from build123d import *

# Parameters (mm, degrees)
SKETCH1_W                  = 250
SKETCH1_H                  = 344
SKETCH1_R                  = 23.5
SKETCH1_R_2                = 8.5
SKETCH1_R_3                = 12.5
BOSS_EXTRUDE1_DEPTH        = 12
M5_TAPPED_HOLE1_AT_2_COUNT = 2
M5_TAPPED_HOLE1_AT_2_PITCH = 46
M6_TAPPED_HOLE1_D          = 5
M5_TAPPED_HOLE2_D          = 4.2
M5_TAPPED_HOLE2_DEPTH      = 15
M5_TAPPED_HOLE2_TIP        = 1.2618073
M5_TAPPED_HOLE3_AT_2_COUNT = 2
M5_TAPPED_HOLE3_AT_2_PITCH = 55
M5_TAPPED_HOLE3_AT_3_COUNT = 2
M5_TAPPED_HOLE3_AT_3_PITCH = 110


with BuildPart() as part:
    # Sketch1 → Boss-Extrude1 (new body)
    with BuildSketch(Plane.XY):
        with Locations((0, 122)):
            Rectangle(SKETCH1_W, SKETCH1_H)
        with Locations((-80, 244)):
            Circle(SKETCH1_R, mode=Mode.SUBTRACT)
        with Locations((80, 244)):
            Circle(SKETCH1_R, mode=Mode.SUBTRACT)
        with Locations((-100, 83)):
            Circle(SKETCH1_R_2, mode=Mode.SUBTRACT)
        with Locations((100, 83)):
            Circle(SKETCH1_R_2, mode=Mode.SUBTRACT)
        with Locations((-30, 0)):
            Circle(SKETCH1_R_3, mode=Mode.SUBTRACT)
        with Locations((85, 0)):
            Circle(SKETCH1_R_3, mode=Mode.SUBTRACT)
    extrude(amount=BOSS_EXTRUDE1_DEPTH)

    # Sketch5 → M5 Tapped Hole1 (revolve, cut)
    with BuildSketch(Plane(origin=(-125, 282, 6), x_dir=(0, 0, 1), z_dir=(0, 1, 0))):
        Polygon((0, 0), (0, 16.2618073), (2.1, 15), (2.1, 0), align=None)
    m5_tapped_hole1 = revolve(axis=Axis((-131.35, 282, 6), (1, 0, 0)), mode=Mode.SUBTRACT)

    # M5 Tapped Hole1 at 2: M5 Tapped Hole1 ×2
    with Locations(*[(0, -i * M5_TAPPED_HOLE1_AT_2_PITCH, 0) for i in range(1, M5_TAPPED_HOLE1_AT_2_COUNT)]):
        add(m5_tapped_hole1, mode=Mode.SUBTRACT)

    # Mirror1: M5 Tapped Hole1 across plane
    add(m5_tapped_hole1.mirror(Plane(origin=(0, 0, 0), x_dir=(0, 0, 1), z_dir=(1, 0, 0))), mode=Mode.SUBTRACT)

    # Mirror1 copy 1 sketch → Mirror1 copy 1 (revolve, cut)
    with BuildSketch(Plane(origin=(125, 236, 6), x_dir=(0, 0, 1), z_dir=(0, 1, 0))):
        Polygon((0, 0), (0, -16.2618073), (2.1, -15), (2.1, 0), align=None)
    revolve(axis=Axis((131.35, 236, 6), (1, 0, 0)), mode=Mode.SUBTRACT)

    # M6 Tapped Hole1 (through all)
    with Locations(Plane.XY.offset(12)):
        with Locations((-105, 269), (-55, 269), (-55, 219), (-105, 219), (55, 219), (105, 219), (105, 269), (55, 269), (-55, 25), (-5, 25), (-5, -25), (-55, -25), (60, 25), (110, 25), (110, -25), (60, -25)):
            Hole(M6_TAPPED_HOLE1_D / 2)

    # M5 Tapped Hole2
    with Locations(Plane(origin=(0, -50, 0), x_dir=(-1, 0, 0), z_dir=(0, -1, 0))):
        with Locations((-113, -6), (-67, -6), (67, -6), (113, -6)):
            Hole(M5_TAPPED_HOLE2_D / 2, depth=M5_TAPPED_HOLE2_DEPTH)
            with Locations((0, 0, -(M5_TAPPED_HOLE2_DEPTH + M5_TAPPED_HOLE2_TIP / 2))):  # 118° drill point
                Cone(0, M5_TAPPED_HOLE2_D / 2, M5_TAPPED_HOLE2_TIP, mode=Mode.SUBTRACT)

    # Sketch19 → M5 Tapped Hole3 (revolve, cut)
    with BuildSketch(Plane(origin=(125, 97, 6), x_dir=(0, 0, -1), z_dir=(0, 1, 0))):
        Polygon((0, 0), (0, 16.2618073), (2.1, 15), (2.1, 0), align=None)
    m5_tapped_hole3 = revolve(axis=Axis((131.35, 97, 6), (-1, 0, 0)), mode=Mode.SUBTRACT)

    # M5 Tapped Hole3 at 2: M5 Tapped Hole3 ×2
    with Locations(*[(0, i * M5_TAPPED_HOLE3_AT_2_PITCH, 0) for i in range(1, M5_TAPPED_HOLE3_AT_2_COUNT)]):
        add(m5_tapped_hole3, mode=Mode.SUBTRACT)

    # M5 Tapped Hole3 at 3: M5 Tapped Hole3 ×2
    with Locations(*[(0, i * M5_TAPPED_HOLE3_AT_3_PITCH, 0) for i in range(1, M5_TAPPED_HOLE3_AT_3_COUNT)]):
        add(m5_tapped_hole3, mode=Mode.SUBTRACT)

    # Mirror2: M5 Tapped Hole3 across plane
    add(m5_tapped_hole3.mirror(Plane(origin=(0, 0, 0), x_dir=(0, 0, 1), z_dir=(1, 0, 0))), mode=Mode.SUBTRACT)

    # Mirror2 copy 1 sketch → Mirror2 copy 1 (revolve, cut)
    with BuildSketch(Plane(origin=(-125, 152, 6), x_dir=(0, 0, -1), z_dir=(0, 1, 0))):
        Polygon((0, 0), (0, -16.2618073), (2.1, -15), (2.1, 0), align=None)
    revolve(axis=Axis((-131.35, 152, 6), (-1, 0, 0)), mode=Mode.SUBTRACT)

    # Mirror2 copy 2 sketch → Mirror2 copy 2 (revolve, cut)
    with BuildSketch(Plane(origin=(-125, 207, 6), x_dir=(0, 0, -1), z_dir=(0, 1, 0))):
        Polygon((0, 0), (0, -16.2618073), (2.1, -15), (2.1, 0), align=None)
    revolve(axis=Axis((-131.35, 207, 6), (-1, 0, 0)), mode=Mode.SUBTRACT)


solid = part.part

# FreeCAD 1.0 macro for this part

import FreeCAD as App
import Part
import Sketcher
Q = App.Units.Quantity

doc = App.newDocument("Part")
body = doc.addObject("PartDesign::Body", "Body")

sketch1 = body.newObject("Sketcher::SketchObject", "Sketch")
sketch1.AttachmentSupport = (doc.getObject("XY_Plane"), [""])
sketch1.MapMode = "FlatFace"
sketch1.addGeometry([
    Part.LineSegment(App.Vector(-125, 294, 0), App.Vector(-125, -50, 0)),
    Part.LineSegment(App.Vector(-125, -50, 0), App.Vector(125, -50, 0)),
    Part.LineSegment(App.Vector(125, -50, 0), App.Vector(125, 294, 0)),
    Part.LineSegment(App.Vector(125, 294, 0), App.Vector(-125, 294, 0)),
    Part.Circle(App.Vector(-30, 0, 0), App.Vector(0, 0, 1), 12),
    Part.Circle(App.Vector(-100, 83, 0), App.Vector(0, 0, 1), 8),
    Part.Circle(App.Vector(85, 0, 0), App.Vector(0, 0, 1), 12),
    Part.Circle(App.Vector(100, 83, 0), App.Vector(0, 0, 1), 8),
    Part.Circle(App.Vector(-80, 244, 0), App.Vector(0, 0, 1), 24),
    Part.Circle(App.Vector(80, 244, 0), App.Vector(0, 0, 1), 24),
], False)
sketch1.addConstraint([
    Sketcher.Constraint("Coincident", 0, 2, 1, 1),
    Sketcher.Constraint("Coincident", 1, 2, 2, 1),
    Sketcher.Constraint("Coincident", 2, 2, 3, 1),
    Sketcher.Constraint("Coincident", 3, 2, 0, 1),
    Sketcher.Constraint("Vertical", 0),
    Sketcher.Constraint("Horizontal", 1),
    Sketcher.Constraint("Vertical", 2),
    Sketcher.Constraint("Horizontal", 3),
    Sketcher.Constraint("Equal", 4, 6),
    Sketcher.Constraint("Equal", 5, 7),
    Sketcher.Constraint("Equal", 8, 9),
    Sketcher.Constraint("Symmetric", 5, 3, 7, 3, -2),
    Sketcher.Constraint("Symmetric", 8, 3, 9, 3, -2),
    Sketcher.Constraint("PointOnObject", 4, 3, -1),
    Sketcher.Constraint("PointOnObject", 6, 3, -1),
    Sketcher.Constraint("Diameter", 4, 25.0),
    Sketcher.Constraint("Diameter", 5, 17.0),
    Sketcher.Constraint("Diameter", 8, 47.0),
    Sketcher.Constraint("DistanceX", 1, 1, 1, 2, 250.0),
    Sketcher.Constraint("DistanceY", 0, 2, 0, 1, 344.0),
    Sketcher.Constraint("DistanceX", 4, 3, -1, 1, 30.0),
    Sketcher.Constraint("DistanceX", 5, 3, -1, 1, 100.0),
    Sketcher.Constraint("DistanceY", -1, 1, 5, 3, 83.0),
    Sketcher.Constraint("DistanceX", -1, 1, 6, 3, 85.0),
    Sketcher.Constraint("DistanceX", 8, 3, -1, 1, 80.0),
    Sketcher.Constraint("DistanceY", -1, 1, 8, 3, 244.0),
    Sketcher.Constraint("DistanceX", 0, 2, -1, 1, 125.0),
    Sketcher.Constraint("DistanceY", 0, 2, -1, 1, 50.0),
])
pad1 = body.newObject("PartDesign::Pad", "Pad")
pad1.Profile = sketch1
pad1.Length = 12

sketch2 = body.newObject("Sketcher::SketchObject", "Sketch001")
sketch2.AttachmentSupport = (doc.getObject("XZ_Plane"), [""])
sketch2.MapMode = "FlatFace"
sketch2.AttachmentOffset = App.Placement(App.Vector(0, 0, -282), App.Rotation())
sketch2.addGeometry([
    Part.LineSegment(App.Vector(-108.7, 6, 0), App.Vector(-125, 6, 0)),
    Part.LineSegment(App.Vector(-125, 6, 0), App.Vector(-125, 8.1, 0)),
    Part.LineSegment(App.Vector(-125, 8.1, 0), App.Vector(-110, 8.1, 0)),
    Part.LineSegment(App.Vector(-110, 8.1, 0), App.Vector(-108.7, 6, 0)),
], False)
sketch2.addGeometry(Part.LineSegment(App.Vector(-125, 6, 0), App.Vector(-108.7, 6, 0)), True)
sketch2.addConstraint([
    Sketcher.Constraint("Coincident", 0, 2, 1, 1),
    Sketcher.Constraint("Coincident", 1, 2, 2, 1),
    Sketcher.Constraint("Coincident", 2, 2, 3, 1),
    Sketcher.Constraint("Coincident", 3, 2, 0, 1),
    Sketcher.Constraint("Horizontal", 0),
    Sketcher.Constraint("Vertical", 1),
    Sketcher.Constraint("Horizontal", 2),
    Sketcher.Constraint("Horizontal", 4),
    Sketcher.Constraint("Coincident", 4, 1, 0, 2),
    Sketcher.Constraint("Equal", 0, 4),
    Sketcher.Constraint("DistanceX", 2, 1, 2, 2, 15.0),
    Sketcher.Constraint("Angle", 3, Q("-59 deg")),
    Sketcher.Constraint("DistanceY", 1, 1, 1, 2, 2.1),
    Sketcher.Constraint("DistanceX", 0, 2, -1, 1, 125.0),
    Sketcher.Constraint("DistanceY", -1, 1, 0, 2, 6.0),
])
groove = body.newObject("PartDesign::Groove", "Groove")
groove.Profile = sketch2
groove.ReferenceAxis = (sketch2, ["Axis0"])
groove.Angle = 360
doc.recompute()

linearpattern = body.newObject("PartDesign::LinearPattern", "LinearPattern")
linearpattern.Originals = [groove]
linearpattern.Direction = (doc.getObject("Y_Axis"), [""])
linearpattern.Mode = "offset"
linearpattern.Offset = 46
linearpattern.Occurrences = 2
linearpattern.Reversed = True
body.Tip = linearpattern
doc.recompute()

mirrored = body.newObject("PartDesign::Mirrored", "Mirrored")
mirrored.Originals = [groove]
mirrored.MirrorPlane = (doc.getObject("YZ_Plane"), [""])
body.Tip = mirrored

sketch3 = body.newObject("Sketcher::SketchObject", "Sketch002")
sketch3.AttachmentSupport = (doc.getObject("XZ_Plane"), [""])
sketch3.MapMode = "FlatFace"
sketch3.AttachmentOffset = App.Placement(App.Vector(0, 0, -236), App.Rotation())
sketch3.addGeometry([
    Part.LineSegment(App.Vector(125, 6, 0), App.Vector(108.7, 6, 0)),
    Part.LineSegment(App.Vector(108.7, 6, 0), App.Vector(110, 8.1, 0)),
    Part.LineSegment(App.Vector(110, 8.1, 0), App.Vector(125, 8.1, 0)),
    Part.LineSegment(App.Vector(125, 8.1, 0), App.Vector(125, 6, 0)),
], False)
sketch3.addGeometry(Part.LineSegment(App.Vector(108.7, 6, 0), App.Vector(125, 6, 0)), True)
sketch3.addConstraint([
    Sketcher.Constraint("Coincident", 0, 2, 1, 1),
    Sketcher.Constraint("Coincident", 1, 2, 2, 1),
    Sketcher.Constraint("Coincident", 2, 2, 3, 1),
    Sketcher.Constraint("Coincident", 3, 2, 0, 1),
    Sketcher.Constraint("Horizontal", 0),
    Sketcher.Constraint("Horizontal", 2),
    Sketcher.Constraint("Vertical", 3),
    Sketcher.Constraint("Horizontal", 4),
    Sketcher.Constraint("Coincident", 4, 1, 0, 2),
    Sketcher.Constraint("Vertical", 2, 2, 4, 2),
    Sketcher.Constraint("DistanceX", 2, 1, 2, 2, 15.0),
    Sketcher.Constraint("Angle", 1, Q("59 deg")),
    Sketcher.Constraint("DistanceY", 3, 2, 3, 1, 2.1),
    Sketcher.Constraint("DistanceY", -1, 1, 0, 2, 6.0),
    Sketcher.Constraint("DistanceX", -1, 1, 1, 2, 110.0),
])
groove2 = body.newObject("PartDesign::Groove", "Groove001")
groove2.Profile = sketch3
groove2.ReferenceAxis = (sketch3, ["Axis0"])
groove2.Angle = 360

sketch4 = body.newObject("Sketcher::SketchObject", "Sketch003")
sketch4.AttachmentSupport = (doc.getObject("XY_Plane"), [""])
sketch4.MapMode = "FlatFace"
sketch4.AttachmentOffset = App.Placement(App.Vector(0, 0, 12), App.Rotation())
sketch4.addGeometry([
    Part.Circle(App.Vector(-105, 269, 0), App.Vector(0, 0, 1), 2.5),
    Part.Circle(App.Vector(-55, 269, 0), App.Vector(0, 0, 1), 2.5),
    Part.Circle(App.Vector(-55, 219, 0), App.Vector(0, 0, 1), 2.5),
    Part.Circle(App.Vector(-105, 219, 0), App.Vector(0, 0, 1), 2.5),
    Part.Circle(App.Vector(55, 219, 0), App.Vector(0, 0, 1), 2.5),
    Part.Circle(App.Vector(105, 219, 0), App.Vector(0, 0, 1), 2.5),
    Part.Circle(App.Vector(105, 269, 0), App.Vector(0, 0, 1), 2.5),
    Part.Circle(App.Vector(55, 269, 0), App.Vector(0, 0, 1), 2.5),
    Part.Circle(App.Vector(-55, 25, 0), App.Vector(0, 0, 1), 2.5),
    Part.Circle(App.Vector(-5, 25, 0), App.Vector(0, 0, 1), 2.5),
    Part.Circle(App.Vector(-5, -25, 0), App.Vector(0, 0, 1), 2.5),
    Part.Circle(App.Vector(-55, -25, 0), App.Vector(0, 0, 1), 2.5),
    Part.Circle(App.Vector(60, 25, 0), App.Vector(0, 0, 1), 2.5),
    Part.Circle(App.Vector(110, 25, 0), App.Vector(0, 0, 1), 2.5),
    Part.Circle(App.Vector(110, -25, 0), App.Vector(0, 0, 1), 2.5),
    Part.Circle(App.Vector(60, -25, 0), App.Vector(0, 0, 1), 2.5),
], False)
sketch4.addConstraint([
    Sketcher.Constraint("Equal", 0, 1),
    Sketcher.Constraint("Equal", 1, 2),
    Sketcher.Constraint("Equal", 2, 3),
    Sketcher.Constraint("Equal", 3, 4),
    Sketcher.Constraint("Equal", 4, 5),
    Sketcher.Constraint("Equal", 5, 6),
    Sketcher.Constraint("Equal", 6, 7),
    Sketcher.Constraint("Equal", 7, 8),
    Sketcher.Constraint("Equal", 8, 9),
    Sketcher.Constraint("Equal", 9, 10),
    Sketcher.Constraint("Equal", 10, 11),
    Sketcher.Constraint("Equal", 11, 12),
    Sketcher.Constraint("Equal", 12, 13),
    Sketcher.Constraint("Equal", 13, 14),
    Sketcher.Constraint("Equal", 14, 15),
    Sketcher.Constraint("Symmetric", 2, 3, 4, 3, -2),
    Sketcher.Constraint("Symmetric", 3, 3, 5, 3, -2),
    Sketcher.Constraint("Symmetric", 0, 3, 6, 3, -2),
    Sketcher.Constraint("Symmetric", 1, 3, 7, 3, -2),
    Sketcher.Constraint("Symmetric", 9, 3, 10, 3, -1),
    Sketcher.Constraint("Symmetric", 8, 3, 11, 3, -1),
    Sketcher.Constraint("Symmetric", 13, 3, 14, 3, -1),
    Sketcher.Constraint("Symmetric", 12, 3, 15, 3, -1),
    Sketcher.Constraint("Horizontal", 0, 3, 1, 3),
    Sketcher.Constraint("Horizontal", 2, 3, 3, 3),
    Sketcher.Constraint("Horizontal", 8, 3, 9, 3),
    Sketcher.Constraint("Horizontal", 9, 3, 12, 3),
    Sketcher.Constraint("Horizontal", 12, 3, 13, 3),
    Sketcher.Constraint("Vertical", 1, 3, 2, 3),
    Sketcher.Constraint("Vertical", 0, 3, 3, 3),
    Sketcher.Constraint("Vertical", 2, 3, 8, 3),
    Sketcher.Constraint("Diameter", 0, 5.0),
    Sketcher.Constraint("DistanceX", 0, 3, -1, 1, 105.0),
    Sketcher.Constraint("DistanceY", -1, 1, 0, 3, 269.0),
    Sketcher.Constraint("DistanceX", 1, 3, -1, 1, 55.0),
    Sketcher.Constraint("DistanceY", -1, 1, 2, 3, 219.0),
    Sketcher.Constraint("DistanceY", -1, 1, 8, 3, 25.0),
    Sketcher.Constraint("DistanceX", 9, 3, -1, 1, 5.0),
    Sketcher.Constraint("DistanceX", -1, 1, 12, 3, 60.0),
    Sketcher.Constraint("DistanceX", -1, 1, 13, 3, 110.0),
])
doc.recompute()
hole = body.newObject("PartDesign::Hole", "Hole")
hole.Profile = sketch4
hole.ThreadType = "None"
hole.Diameter = 5
hole.DepthType = "ThroughAll"

sketch5 = body.newObject("Sketcher::SketchObject", "Sketch004")
sketch5.AttachmentSupport = (doc.getObject("XZ_Plane"), [""])
sketch5.MapMode = "FlatFace"
sketch5.AttachmentOffset = App.Placement(App.Vector(0, 0, 50), App.Rotation())
sketch5.addGeometry([
    Part.Circle(App.Vector(113, 6, 0), App.Vector(0, 0, 1), 2.1),
    Part.Circle(App.Vector(67, 6, 0), App.Vector(0, 0, 1), 2.1),
    Part.Circle(App.Vector(-67, 6, 0), App.Vector(0, 0, 1), 2.1),
    Part.Circle(App.Vector(-113, 6, 0), App.Vector(0, 0, 1), 2.1),
], False)
sketch5.addConstraint([
    Sketcher.Constraint("Equal", 0, 1),
    Sketcher.Constraint("Equal", 1, 2),
    Sketcher.Constraint("Equal", 2, 3),
    Sketcher.Constraint("Symmetric", 1, 3, 2, 3, -2),
    Sketcher.Constraint("Symmetric", 0, 3, 3, 3, -2),
    Sketcher.Constraint("Horizontal", 0, 3, 1, 3),
    Sketcher.Constraint("Diameter", 0, 4.2),
    Sketcher.Constraint("DistanceX", -1, 1, 0, 3, 113.0),
    Sketcher.Constraint("DistanceY", -1, 1, 0, 3, 6.0),
    Sketcher.Constraint("DistanceX", -1, 1, 1, 3, 67.0),
])
doc.recompute()
hole2 = body.newObject("PartDesign::Hole", "Hole001")
hole2.Profile = sketch5
hole2.ThreadType = "None"
hole2.Diameter = 4.2
hole2.DepthType = "Dimension"
hole2.Depth = 15
hole2.DrillPoint = "Angled"
hole2.DrillPointAngle = 118

sketch6 = body.newObject("Sketcher::SketchObject", "Sketch005")
sketch6.AttachmentSupport = (doc.getObject("XZ_Plane"), [""])
sketch6.MapMode = "FlatFace"
sketch6.AttachmentOffset = App.Placement(App.Vector(0, 0, -97), App.Rotation())
sketch6.addGeometry([
    Part.LineSegment(App.Vector(108.7, 6, 0), App.Vector(125, 6, 0)),
    Part.LineSegment(App.Vector(125, 6, 0), App.Vector(125, 3.9, 0)),
    Part.LineSegment(App.Vector(125, 3.9, 0), App.Vector(110, 3.9, 0)),
    Part.LineSegment(App.Vector(110, 3.9, 0), App.Vector(108.7, 6, 0)),
], False)
sketch6.addGeometry(Part.LineSegment(App.Vector(125, 6, 0), App.Vector(108.7, 6, 0)), True)
sketch6.addConstraint([
    Sketcher.Constraint("Coincident", 0, 2, 1, 1),
    Sketcher.Constraint("Coincident", 1, 2, 2, 1),
    Sketcher.Constraint("Coincident", 2, 2, 3, 1),
    Sketcher.Constraint("Coincident", 3, 2, 0, 1),
    Sketcher.Constraint("Horizontal", 0),
    Sketcher.Constraint("Vertical", 1),
    Sketcher.Constraint("Horizontal", 2),
    Sketcher.Constraint("Horizontal", 4),
    Sketcher.Constraint("Coincident", 4, 1, 0, 2),
    Sketcher.Constraint("Equal", 0, 4),
    Sketcher.Constraint("DistanceX", 2, 2, 2, 1, 15.0),
    Sketcher.Constraint("Angle", 3, Q("121 deg")),
    Sketcher.Constraint("DistanceY", 1, 2, 1, 1, 2.1),
    Sketcher.Constraint("DistanceX", -1, 1, 0, 2, 125.0),
    Sketcher.Constraint("DistanceY", -1, 1, 0, 2, 6.0),
])
groove3 = body.newObject("PartDesign::Groove", "Groove002")
groove3.Profile = sketch6
groove3.ReferenceAxis = (sketch6, ["Axis0"])
groove3.Angle = 360
doc.recompute()

linearpattern2 = body.newObject("PartDesign::LinearPattern", "LinearPattern001")
linearpattern2.Originals = [groove3]
linearpattern2.Direction = (doc.getObject("Y_Axis"), [""])
linearpattern2.Mode = "offset"
linearpattern2.Offset = 55
linearpattern2.Occurrences = 2
body.Tip = linearpattern2
doc.recompute()

linearpattern3 = body.newObject("PartDesign::LinearPattern", "LinearPattern002")
linearpattern3.Originals = [groove3]
linearpattern3.Direction = (doc.getObject("Y_Axis"), [""])
linearpattern3.Mode = "offset"
linearpattern3.Offset = 110
linearpattern3.Occurrences = 2
body.Tip = linearpattern3
doc.recompute()

mirrored2 = body.newObject("PartDesign::Mirrored", "Mirrored001")
mirrored2.Originals = [groove3]
mirrored2.MirrorPlane = (doc.getObject("YZ_Plane"), [""])
body.Tip = mirrored2

sketch7 = body.newObject("Sketcher::SketchObject", "Sketch006")
sketch7.AttachmentSupport = (doc.getObject("XZ_Plane"), [""])
sketch7.MapMode = "FlatFace"
sketch7.AttachmentOffset = App.Placement(App.Vector(0, 0, -152), App.Rotation())
sketch7.addGeometry([
    Part.LineSegment(App.Vector(-125, 6, 0), App.Vector(-108.7, 6, 0)),
    Part.LineSegment(App.Vector(-108.7, 6, 0), App.Vector(-110, 3.9, 0)),
    Part.LineSegment(App.Vector(-110, 3.9, 0), App.Vector(-125, 3.9, 0)),
    Part.LineSegment(App.Vector(-125, 3.9, 0), App.Vector(-125, 6, 0)),
], False)
sketch7.addGeometry(Part.LineSegment(App.Vector(-108.7, 6, 0), App.Vector(-125, 6, 0)), True)
sketch7.addConstraint([
    Sketcher.Constraint("Coincident", 0, 2, 1, 1),
    Sketcher.Constraint("Coincident", 1, 2, 2, 1),
    Sketcher.Constraint("Coincident", 2, 2, 3, 1),
    Sketcher.Constraint("Coincident", 3, 2, 0, 1),
    Sketcher.Constraint("Horizontal", 0),
    Sketcher.Constraint("Horizontal", 2),
    Sketcher.Constraint("Vertical", 3),
    Sketcher.Constraint("Horizontal", 4),
    Sketcher.Constraint("Coincident", 4, 1, 0, 2),
    Sketcher.Constraint("Vertical", 2, 2, 4, 2),
    Sketcher.Constraint("DistanceX", 2, 2, 2, 1, 15.0),
    Sketcher.Constraint("Angle", 1, Q("-121 deg")),
    Sketcher.Constraint("DistanceY", 3, 1, 3, 2, 2.1),
    Sketcher.Constraint("DistanceY", -1, 1, 0, 2, 6.0),
    Sketcher.Constraint("DistanceX", 1, 2, -1, 1, 110.0),
])
groove4 = body.newObject("PartDesign::Groove", "Groove003")
groove4.Profile = sketch7
groove4.ReferenceAxis = (sketch7, ["Axis0"])
groove4.Angle = 360

sketch8 = body.newObject("Sketcher::SketchObject", "Sketch007")
sketch8.AttachmentSupport = (doc.getObject("XZ_Plane"), [""])
sketch8.MapMode = "FlatFace"
sketch8.AttachmentOffset = App.Placement(App.Vector(0, 0, -207), App.Rotation())
sketch8.addGeometry([
    Part.LineSegment(App.Vector(-125, 6, 0), App.Vector(-108.7, 6, 0)),
    Part.LineSegment(App.Vector(-108.7, 6, 0), App.Vector(-110, 3.9, 0)),
    Part.LineSegment(App.Vector(-110, 3.9, 0), App.Vector(-125, 3.9, 0)),
    Part.LineSegment(App.Vector(-125, 3.9, 0), App.Vector(-125, 6, 0)),
], False)
sketch8.addGeometry(Part.LineSegment(App.Vector(-108.7, 6, 0), App.Vector(-125, 6, 0)), True)
sketch8.addConstraint([
    Sketcher.Constraint("Coincident", 0, 2, 1, 1),
    Sketcher.Constraint("Coincident", 1, 2, 2, 1),
    Sketcher.Constraint("Coincident", 2, 2, 3, 1),
    Sketcher.Constraint("Coincident", 3, 2, 0, 1),
    Sketcher.Constraint("Horizontal", 0),
    Sketcher.Constraint("Horizontal", 2),
    Sketcher.Constraint("Vertical", 3),
    Sketcher.Constraint("Horizontal", 4),
    Sketcher.Constraint("Coincident", 4, 1, 0, 2),
    Sketcher.Constraint("Vertical", 2, 2, 4, 2),
    Sketcher.Constraint("DistanceX", 2, 2, 2, 1, 15.0),
    Sketcher.Constraint("Angle", 1, Q("-121 deg")),
    Sketcher.Constraint("DistanceY", 3, 1, 3, 2, 2.1),
    Sketcher.Constraint("DistanceY", -1, 1, 0, 2, 6.0),
    Sketcher.Constraint("DistanceX", 1, 2, -1, 1, 110.0),
])
groove5 = body.newObject("PartDesign::Groove", "Groove004")
groove5.Profile = sketch8
groove5.ReferenceAxis = (sketch8, ["Axis0"])
groove5.Angle = 360

doc.recompute()
